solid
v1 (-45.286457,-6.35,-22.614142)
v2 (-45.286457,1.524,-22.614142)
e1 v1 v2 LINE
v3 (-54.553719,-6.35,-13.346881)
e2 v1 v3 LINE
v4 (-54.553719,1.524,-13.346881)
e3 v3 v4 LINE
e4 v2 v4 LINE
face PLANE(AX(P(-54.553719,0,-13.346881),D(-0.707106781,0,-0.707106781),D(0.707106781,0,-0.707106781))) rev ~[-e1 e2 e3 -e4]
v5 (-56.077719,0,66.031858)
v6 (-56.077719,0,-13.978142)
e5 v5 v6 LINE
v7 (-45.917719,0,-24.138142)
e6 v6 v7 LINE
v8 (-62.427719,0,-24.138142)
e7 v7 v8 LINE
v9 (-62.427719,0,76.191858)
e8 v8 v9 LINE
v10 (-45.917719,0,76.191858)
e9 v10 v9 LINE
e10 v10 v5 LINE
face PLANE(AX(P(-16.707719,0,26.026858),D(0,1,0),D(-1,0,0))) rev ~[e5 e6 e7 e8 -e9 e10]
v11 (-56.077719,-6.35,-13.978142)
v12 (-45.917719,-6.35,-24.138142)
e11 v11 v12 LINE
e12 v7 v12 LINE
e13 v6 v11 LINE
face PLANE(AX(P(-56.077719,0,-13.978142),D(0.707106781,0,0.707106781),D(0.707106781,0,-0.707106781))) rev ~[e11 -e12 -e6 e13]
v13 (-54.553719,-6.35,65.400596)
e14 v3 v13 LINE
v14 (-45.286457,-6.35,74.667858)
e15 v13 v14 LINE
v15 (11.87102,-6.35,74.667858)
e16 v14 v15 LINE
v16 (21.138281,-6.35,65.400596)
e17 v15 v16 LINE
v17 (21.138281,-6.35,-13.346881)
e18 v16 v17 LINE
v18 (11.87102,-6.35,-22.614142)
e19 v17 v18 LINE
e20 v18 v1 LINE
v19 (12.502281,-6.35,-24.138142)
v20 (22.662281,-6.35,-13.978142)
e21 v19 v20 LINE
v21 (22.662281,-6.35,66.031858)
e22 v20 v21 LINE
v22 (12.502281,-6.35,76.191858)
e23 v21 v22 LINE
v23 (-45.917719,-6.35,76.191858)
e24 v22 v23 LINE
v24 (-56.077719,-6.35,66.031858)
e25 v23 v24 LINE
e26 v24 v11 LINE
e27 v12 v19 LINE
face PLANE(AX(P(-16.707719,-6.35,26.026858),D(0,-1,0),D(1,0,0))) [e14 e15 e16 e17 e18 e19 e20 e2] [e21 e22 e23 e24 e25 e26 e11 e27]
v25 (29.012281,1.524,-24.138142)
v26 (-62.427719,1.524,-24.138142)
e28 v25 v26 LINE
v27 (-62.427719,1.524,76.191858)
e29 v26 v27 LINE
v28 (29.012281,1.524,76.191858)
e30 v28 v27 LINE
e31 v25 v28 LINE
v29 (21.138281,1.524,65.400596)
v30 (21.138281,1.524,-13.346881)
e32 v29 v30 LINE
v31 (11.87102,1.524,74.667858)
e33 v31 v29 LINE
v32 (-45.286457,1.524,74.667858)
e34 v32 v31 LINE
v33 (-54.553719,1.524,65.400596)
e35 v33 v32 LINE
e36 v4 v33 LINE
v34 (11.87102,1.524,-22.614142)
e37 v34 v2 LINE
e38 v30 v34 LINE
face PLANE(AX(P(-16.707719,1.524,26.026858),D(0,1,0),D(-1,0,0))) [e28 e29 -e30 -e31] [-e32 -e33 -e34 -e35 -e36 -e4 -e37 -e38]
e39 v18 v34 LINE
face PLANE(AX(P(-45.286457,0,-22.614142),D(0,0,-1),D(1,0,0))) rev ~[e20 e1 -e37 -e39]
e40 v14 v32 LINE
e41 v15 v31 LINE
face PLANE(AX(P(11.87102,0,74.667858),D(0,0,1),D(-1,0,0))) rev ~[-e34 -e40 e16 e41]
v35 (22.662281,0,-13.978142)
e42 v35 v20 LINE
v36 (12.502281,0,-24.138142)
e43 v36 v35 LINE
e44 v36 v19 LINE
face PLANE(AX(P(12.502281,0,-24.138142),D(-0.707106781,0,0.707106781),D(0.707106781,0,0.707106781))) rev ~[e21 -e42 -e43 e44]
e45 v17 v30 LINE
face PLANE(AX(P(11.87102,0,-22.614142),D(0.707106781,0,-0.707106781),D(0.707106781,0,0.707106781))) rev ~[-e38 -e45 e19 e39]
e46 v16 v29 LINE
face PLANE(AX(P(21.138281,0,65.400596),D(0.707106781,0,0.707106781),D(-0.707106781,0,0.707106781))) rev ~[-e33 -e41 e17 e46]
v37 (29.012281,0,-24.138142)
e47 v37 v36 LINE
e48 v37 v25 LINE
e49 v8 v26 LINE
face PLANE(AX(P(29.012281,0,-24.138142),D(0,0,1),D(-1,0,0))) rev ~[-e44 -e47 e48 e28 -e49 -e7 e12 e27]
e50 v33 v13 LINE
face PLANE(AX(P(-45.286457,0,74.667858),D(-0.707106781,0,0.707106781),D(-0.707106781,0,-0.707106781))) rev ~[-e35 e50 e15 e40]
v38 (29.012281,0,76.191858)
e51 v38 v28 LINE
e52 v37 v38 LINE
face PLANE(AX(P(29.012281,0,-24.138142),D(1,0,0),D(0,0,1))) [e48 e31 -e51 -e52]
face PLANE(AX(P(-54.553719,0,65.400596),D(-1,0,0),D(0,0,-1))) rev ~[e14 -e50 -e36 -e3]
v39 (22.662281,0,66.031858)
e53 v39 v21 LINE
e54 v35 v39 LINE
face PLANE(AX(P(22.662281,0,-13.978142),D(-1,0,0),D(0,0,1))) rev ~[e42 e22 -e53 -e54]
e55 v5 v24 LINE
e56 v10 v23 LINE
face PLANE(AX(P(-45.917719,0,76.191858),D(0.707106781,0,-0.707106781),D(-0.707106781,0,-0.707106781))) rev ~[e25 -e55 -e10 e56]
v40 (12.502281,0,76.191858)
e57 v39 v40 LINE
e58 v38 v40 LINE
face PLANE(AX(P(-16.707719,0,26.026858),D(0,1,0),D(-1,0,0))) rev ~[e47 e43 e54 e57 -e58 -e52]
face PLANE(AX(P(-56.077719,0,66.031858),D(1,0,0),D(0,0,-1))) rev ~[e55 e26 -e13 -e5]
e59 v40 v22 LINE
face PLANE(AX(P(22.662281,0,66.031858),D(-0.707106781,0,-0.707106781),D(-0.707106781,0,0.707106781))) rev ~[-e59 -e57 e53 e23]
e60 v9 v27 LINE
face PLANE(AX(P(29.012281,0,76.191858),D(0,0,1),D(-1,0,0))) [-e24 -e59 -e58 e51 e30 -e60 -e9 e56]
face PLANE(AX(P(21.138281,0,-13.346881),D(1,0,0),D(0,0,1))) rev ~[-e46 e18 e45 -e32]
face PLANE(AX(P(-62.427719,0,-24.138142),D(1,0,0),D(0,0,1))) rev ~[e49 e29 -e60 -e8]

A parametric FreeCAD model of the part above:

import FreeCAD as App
import Part
import Sketcher
Q = App.Units.Quantity

doc = App.newDocument("Part")
body = doc.addObject("PartDesign::Body", "Body")

sketch1 = doc.addObject("Sketcher::SketchObject", "Sketch")
body.addObject(sketch1)
sketch1.AttachmentSupport = (doc.XZ_Plane, [""])
sketch1.MapMode = "FlatFace"
sketch1.addGeometry([
    Part.LineSegment(App.Vector(13, 76, 0), App.Vector(-46, 76, 0)),
    Part.LineSegment(App.Vector(-46, 76, 0), App.Vector(-56, 66, 0)),
    Part.LineSegment(App.Vector(-56, 66, 0), App.Vector(-56, -14, 0)),
    Part.LineSegment(App.Vector(-56, -14, 0), App.Vector(-46, -24, 0)),
    Part.LineSegment(App.Vector(-46, -24, 0), App.Vector(13, -24, 0)),
    Part.LineSegment(App.Vector(13, -24, 0), App.Vector(23, -14, 0)),
    Part.LineSegment(App.Vector(23, -14, 0), App.Vector(23, 66, 0)),
    Part.LineSegment(App.Vector(23, 66, 0), App.Vector(13, 76, 0)),
    Part.LineSegment(App.Vector(-55, -13, 0), App.Vector(-55, 65, 0)),
    Part.LineSegment(App.Vector(-55, 65, 0), App.Vector(-45, 75, 0)),
    Part.LineSegment(App.Vector(-45, 75, 0), App.Vector(12, 75, 0)),
    Part.LineSegment(App.Vector(12, 75, 0), App.Vector(21, 65, 0)),
    Part.LineSegment(App.Vector(21, 65, 0), App.Vector(21, -13, 0)),
    Part.LineSegment(App.Vector(21, -13, 0), App.Vector(12, -23, 0)),
    Part.LineSegment(App.Vector(12, -23, 0), App.Vector(-45, -23, 0)),
    Part.LineSegment(App.Vector(-45, -23, 0), App.Vector(-55, -13, 0)),
], False)
sketch1.addConstraint([
    Sketcher.Constraint("Coincident", 0, 2, 1, 1),
    Sketcher.Constraint("Coincident", 1, 2, 2, 1),
    Sketcher.Constraint("Coincident", 2, 2, 3, 1),
    Sketcher.Constraint("Coincident", 3, 2, 4, 1),
    Sketcher.Constraint("Coincident", 4, 2, 5, 1),
    Sketcher.Constraint("Coincident", 5, 2, 6, 1),
    Sketcher.Constraint("Coincident", 6, 2, 7, 1),
    Sketcher.Constraint("Coincident", 7, 2, 0, 1),
    Sketcher.Constraint("Coincident", 8, 2, 9, 1),
    Sketcher.Constraint("Coincident", 9, 2, 10, 1),
    Sketcher.Constraint("Coincident", 10, 2, 11, 1),
    Sketcher.Constraint("Coincident", 11, 2, 12, 1),
    Sketcher.Constraint("Coincident", 12, 2, 13, 1),
    Sketcher.Constraint("Coincident", 13, 2, 14, 1),
    Sketcher.Constraint("Coincident", 14, 2, 15, 1),
    Sketcher.Constraint("Coincident", 15, 2, 8, 1),
    Sketcher.Constraint("Horizontal", 0),
    Sketcher.Constraint("Vertical", 2),
    Sketcher.Constraint("Horizontal", 4),
    Sketcher.Constraint("Vertical", 6),
    Sketcher.Constraint("Vertical", 8),
    Sketcher.Constraint("Horizontal", 10),
    Sketcher.Constraint("Vertical", 12),
    Sketcher.Constraint("Horizontal", 14),
    Sketcher.Constraint("Perpendicular", 1, 3),
    Sketcher.Constraint("Perpendicular", 3, 5),
    Sketcher.Constraint("Perpendicular", 5, 7),
    Sketcher.Constraint("Perpendicular", 7, 9),
    Sketcher.Constraint("Perpendicular", 9, 11),
    Sketcher.Constraint("Perpendicular", 11, 13),
    Sketcher.Constraint("Perpendicular", 13, 15),
    Sketcher.Constraint("Horizontal", 2, 2, 5, 2),
    Sketcher.Constraint("Horizontal", 1, 2, 6, 2),
    Sketcher.Constraint("Horizontal", 8, 2, 11, 2),
    Sketcher.Constraint("Horizontal", 12, 2, 15, 2),
    Sketcher.Constraint("Vertical", 0, 2, 3, 2),
    Sketcher.Constraint("Vertical", 4, 2, 7, 2),
    Sketcher.Constraint("Vertical", 10, 2, 13, 2),
    Sketcher.Constraint("DistanceX", 0, 2, 0, 1, Q("2.3 in")),
    Sketcher.Constraint("DistanceY", 2, 2, 2, 1, Q("3.15 in")),
    Sketcher.Constraint("DistanceX", 1, 2, 0, 2, Q("0.4 in")),
    Sketcher.Constraint("DistanceX", 1, 2, 8, 2, Q("0.06 in")),
    Sketcher.Constraint("DistanceY", 9, 2, 0, 2, Q("0.06 in")),
    Sketcher.Constraint("DistanceX", 11, 2, 6, 2, Q("0.06 in")),
    Sketcher.Constraint("DistanceY", 4, 2, 13, 2, Q("0.06 in")),
    Sketcher.Constraint("DistanceX", 10, 1, 10, 2, 57.157477),
    Sketcher.Constraint("DistanceX", 0, 2, -1, 1, 45.917719),
    Sketcher.Constraint("DistanceY", 12, 2, -1, 1, 13.346881),
])
pad1 = doc.addObject("PartDesign::Pad", "Pad")
body.addObject(pad1)
pad1.Profile = sketch1
pad1.Length = Q("0.25 in")

sketch2 = doc.addObject("Sketcher::SketchObject", "Sketch001")
body.addObject(sketch2)
sketch2.AttachmentSupport = (doc.XZ_Plane, [""])
sketch2.MapMode = "FlatFace"
sketch2.addGeometry([
    Part.LineSegment(App.Vector(29, 76, 0), App.Vector(29, -24, 0)),
    Part.LineSegment(App.Vector(29, -24, 0), App.Vector(-62, -24, 0)),
    Part.LineSegment(App.Vector(-62, -24, 0), App.Vector(-62, 76, 0)),
    Part.LineSegment(App.Vector(-62, 76, 0), App.Vector(29, 76, 0)),
], False)
sketch2.addConstraint([
    Sketcher.Constraint("Coincident", 0, 2, 1, 1),
    Sketcher.Constraint("Coincident", 1, 2, 2, 1),
    Sketcher.Constraint("Coincident", 2, 2, 3, 1),
    Sketcher.Constraint("Coincident", 3, 2, 0, 1),
    Sketcher.Constraint("Vertical", 0),
    Sketcher.Constraint("Horizontal", 1),
    Sketcher.Constraint("Vertical", 2),
    Sketcher.Constraint("Horizontal", 3),
    Sketcher.Constraint("DistanceX", 1, 2, 1, 1, Q("3.6 in")),
    Sketcher.Constraint("DistanceY", 0, 2, 0, 1, Q("3.95 in")),
    Sketcher.Constraint("DistanceX", -1, 1, 0, 2, 29.012281),
    Sketcher.Constraint("DistanceY", 0, 2, -1, 1, 24.138142),
])
pad2 = doc.addObject("PartDesign::Pad", "Pad001")
body.addObject(pad2)
pad2.Profile = sketch2
pad2.Length = Q("0.06 in")
pad2.Reversed = True

sketch3 = doc.addObject("Sketcher::SketchObject", "Sketch002")
body.addObject(sketch3)
sketch3.AttachmentSupport = (doc.XZ_Plane, [""])
sketch3.MapMode = "FlatFace"
sketch3.addGeometry([
    Part.LineSegment(App.Vector(12, 75, 0), App.Vector(-45, 75, 0)),
    Part.LineSegment(App.Vector(-45, 75, 0), App.Vector(-55, 65, 0)),
    Part.LineSegment(App.Vector(-55, 65, 0), App.Vector(-55, -13, 0)),
    Part.LineSegment(App.Vector(-55, -13, 0), App.Vector(-45, -23, 0)),
    Part.LineSegment(App.Vector(-45, -23, 0), App.Vector(12, -23, 0)),
    Part.LineSegment(App.Vector(12, -23, 0), App.Vector(21, -13, 0)),
    Part.LineSegment(App.Vector(21, -13, 0), App.Vector(21, 65, 0)),
    Part.LineSegment(App.Vector(21, 65, 0), App.Vector(12, 75, 0)),
], False)
sketch3.addConstraint([
    Sketcher.Constraint("Coincident", 0, 2, 1, 1),
    Sketcher.Constraint("Coincident", 1, 2, 2, 1),
    Sketcher.Constraint("Coincident", 2, 2, 3, 1),
    Sketcher.Constraint("Coincident", 3, 2, 4, 1),
    Sketcher.Constraint("Coincident", 4, 2, 5, 1),
    Sketcher.Constraint("Coincident", 5, 2, 6, 1),
    Sketcher.Constraint("Coincident", 6, 2, 7, 1),
    Sketcher.Constraint("Coincident", 7, 2, 0, 1),
    Sketcher.Constraint("Horizontal", 0),
    Sketcher.Constraint("Vertical", 2),
    Sketcher.Constraint("Horizontal", 4),
    Sketcher.Constraint("Vertical", 6),
    Sketcher.Constraint("Perpendicular", 1, 3),
    Sketcher.Constraint("Perpendicular", 3, 5),
    Sketcher.Constraint("Perpendicular", 5, 7),
    Sketcher.Constraint("Horizontal", 2, 2, 5, 2),
    Sketcher.Constraint("Horizontal", 1, 2, 6, 2),
    Sketcher.Constraint("Vertical", 0, 2, 3, 2),
    Sketcher.Constraint("Vertical", 4, 2, 7, 2),
    Sketcher.Constraint("DistanceY", 3, 2, 0, 2, Q("3.83 in")),
    Sketcher.Constraint("DistanceX", 2, 2, 5, 2, Q("2.98 in")),
    Sketcher.Constraint("DistanceX", 0, 2, 0, 1, 57.157477),
    Sketcher.Constraint("DistanceX", 1, 2, -1, 1, 54.553719),
    Sketcher.Constraint("DistanceY", 2, 2, -1, 1, 13.346881),
])
pocket1 = doc.addObject("PartDesign::Pocket", "Pocket")
body.addObject(pocket1)
pocket1.Profile = sketch3
pocket1.Length = Q("0.42 in")
pocket1.Midplane = True

sketch4 = doc.addObject("Sketcher::SketchObject", "Sketch003")
body.addObject(sketch4)
sketch4.AttachmentSupport = (doc.XZ_Plane, [""])
sketch4.MapMode = "FlatFace"
sketch4.addGeometry([
    Part.LineSegment(App.Vector(13, 76, 0), App.Vector(-46, 76, 0)),
    Part.LineSegment(App.Vector(-46, 76, 0), App.Vector(-56, 66, 0)),
    Part.LineSegment(App.Vector(-56, 66, 0), App.Vector(-56, -14, 0)),
    Part.LineSegment(App.Vector(-56, -14, 0), App.Vector(-46, -24, 0)),
    Part.LineSegment(App.Vector(-46, -24, 0), App.Vector(13, -24, 0)),
    Part.LineSegment(App.Vector(13, -24, 0), App.Vector(23, -14, 0)),
    Part.LineSegment(App.Vector(23, -14, 0), App.Vector(23, 66, 0)),
    Part.LineSegment(App.Vector(23, 66, 0), App.Vector(13, 76, 0)),
    Part.LineSegment(App.Vector(-55, -13, 0), App.Vector(-55, 65, 0)),
    Part.LineSegment(App.Vector(-55, 65, 0), App.Vector(-45, 75, 0)),
    Part.LineSegment(App.Vector(-45, 75, 0), App.Vector(12, 75, 0)),
    Part.LineSegment(App.Vector(12, 75, 0), App.Vector(21, 65, 0)),
    Part.LineSegment(App.Vector(21, 65, 0), App.Vector(21, -13, 0)),
    Part.LineSegment(App.Vector(21, -13, 0), App.Vector(12, -23, 0)),
    Part.LineSegment(App.Vector(12, -23, 0), App.Vector(-45, -23, 0)),
    Part.LineSegment(App.Vector(-45, -23, 0), App.Vector(-55, -13, 0)),
], False)
sketch4.addConstraint([
    Sketcher.Constraint("Coincident", 0, 2, 1, 1),
    Sketcher.Constraint("Coincident", 1, 2, 2, 1),
    Sketcher.Constraint("Coincident", 2, 2, 3, 1),
    Sketcher.Constraint("Coincident", 3, 2, 4, 1),
    Sketcher.Constraint("Coincident", 4, 2, 5, 1),
    Sketcher.Constraint("Coincident", 5, 2, 6, 1),
    Sketcher.Constraint("Coincident", 6, 2, 7, 1),
    Sketcher.Constraint("Coincident", 7, 2, 0, 1),
    Sketcher.Constraint("Coincident", 8, 2, 9, 1),
    Sketcher.Constraint("Coincident", 9, 2, 10, 1),
    Sketcher.Constraint("Coincident", 10, 2, 11, 1),
    Sketcher.Constraint("Coincident", 11, 2, 12, 1),
    Sketcher.Constraint("Coincident", 12, 2, 13, 1),
    Sketcher.Constraint("Coincident", 13, 2, 14, 1),
    Sketcher.Constraint("Coincident", 14, 2, 15, 1),
    Sketcher.Constraint("Coincident", 15, 2, 8, 1),
    Sketcher.Constraint("Horizontal", 0),
    Sketcher.Constraint("Vertical", 2),
    Sketcher.Constraint("Horizontal", 4),
    Sketcher.Constraint("Vertical", 6),
    Sketcher.Constraint("Vertical", 8),
    Sketcher.Constraint("Horizontal", 10),
    Sketcher.Constraint("Vertical", 12),
    Sketcher.Constraint("Horizontal", 14),
    Sketcher.Constraint("Perpendicular", 1, 3),
    Sketcher.Constraint("Perpendicular", 3, 5),
    Sketcher.Constraint("Perpendicular", 5, 7),
    Sketcher.Constraint("Perpendicular", 7, 9),
    Sketcher.Constraint("Perpendicular", 9, 11),
    Sketcher.Constraint("Perpendicular", 11, 13),
    Sketcher.Constraint("Perpendicular", 13, 15),
    Sketcher.Constraint("Horizontal", 2, 2, 5, 2),
    Sketcher.Constraint("Horizontal", 1, 2, 6, 2),
    Sketcher.Constraint("Horizontal", 8, 2, 11, 2),
    Sketcher.Constraint("Horizontal", 12, 2, 15, 2),
    Sketcher.Constraint("Vertical", 0, 2, 3, 2),
    Sketcher.Constraint("Vertical", 4, 2, 7, 2),
    Sketcher.Constraint("Vertical", 10, 2, 13, 2),
    Sketcher.Constraint("DistanceX", 0, 2, 0, 1, Q("2.3 in")),
    Sketcher.Constraint("DistanceY", 2, 2, 2, 1, Q("3.15 in")),
    Sketcher.Constraint("DistanceX", 1, 2, 0, 2, Q("0.4 in")),
    Sketcher.Constraint("DistanceX", 1, 2, 8, 2, Q("0.06 in")),
    Sketcher.Constraint("DistanceY", 9, 2, 0, 2, Q("0.06 in")),
    Sketcher.Constraint("DistanceX", 11, 2, 6, 2, Q("0.06 in")),
    Sketcher.Constraint("DistanceY", 4, 2, 13, 2, Q("0.06 in")),
    Sketcher.Constraint("DistanceX", 10, 1, 10, 2, 57.157477),
    Sketcher.Constraint("DistanceX", 0, 2, -1, 1, 45.917719),
    Sketcher.Constraint("DistanceY", 12, 2, -1, 1, 13.346881),
])
pad3 = doc.addObject("PartDesign::Pad", "Pad002")
body.addObject(pad3)
pad3.Profile = sketch4
pad3.Length = Q("0.25 in")

doc.recompute()
